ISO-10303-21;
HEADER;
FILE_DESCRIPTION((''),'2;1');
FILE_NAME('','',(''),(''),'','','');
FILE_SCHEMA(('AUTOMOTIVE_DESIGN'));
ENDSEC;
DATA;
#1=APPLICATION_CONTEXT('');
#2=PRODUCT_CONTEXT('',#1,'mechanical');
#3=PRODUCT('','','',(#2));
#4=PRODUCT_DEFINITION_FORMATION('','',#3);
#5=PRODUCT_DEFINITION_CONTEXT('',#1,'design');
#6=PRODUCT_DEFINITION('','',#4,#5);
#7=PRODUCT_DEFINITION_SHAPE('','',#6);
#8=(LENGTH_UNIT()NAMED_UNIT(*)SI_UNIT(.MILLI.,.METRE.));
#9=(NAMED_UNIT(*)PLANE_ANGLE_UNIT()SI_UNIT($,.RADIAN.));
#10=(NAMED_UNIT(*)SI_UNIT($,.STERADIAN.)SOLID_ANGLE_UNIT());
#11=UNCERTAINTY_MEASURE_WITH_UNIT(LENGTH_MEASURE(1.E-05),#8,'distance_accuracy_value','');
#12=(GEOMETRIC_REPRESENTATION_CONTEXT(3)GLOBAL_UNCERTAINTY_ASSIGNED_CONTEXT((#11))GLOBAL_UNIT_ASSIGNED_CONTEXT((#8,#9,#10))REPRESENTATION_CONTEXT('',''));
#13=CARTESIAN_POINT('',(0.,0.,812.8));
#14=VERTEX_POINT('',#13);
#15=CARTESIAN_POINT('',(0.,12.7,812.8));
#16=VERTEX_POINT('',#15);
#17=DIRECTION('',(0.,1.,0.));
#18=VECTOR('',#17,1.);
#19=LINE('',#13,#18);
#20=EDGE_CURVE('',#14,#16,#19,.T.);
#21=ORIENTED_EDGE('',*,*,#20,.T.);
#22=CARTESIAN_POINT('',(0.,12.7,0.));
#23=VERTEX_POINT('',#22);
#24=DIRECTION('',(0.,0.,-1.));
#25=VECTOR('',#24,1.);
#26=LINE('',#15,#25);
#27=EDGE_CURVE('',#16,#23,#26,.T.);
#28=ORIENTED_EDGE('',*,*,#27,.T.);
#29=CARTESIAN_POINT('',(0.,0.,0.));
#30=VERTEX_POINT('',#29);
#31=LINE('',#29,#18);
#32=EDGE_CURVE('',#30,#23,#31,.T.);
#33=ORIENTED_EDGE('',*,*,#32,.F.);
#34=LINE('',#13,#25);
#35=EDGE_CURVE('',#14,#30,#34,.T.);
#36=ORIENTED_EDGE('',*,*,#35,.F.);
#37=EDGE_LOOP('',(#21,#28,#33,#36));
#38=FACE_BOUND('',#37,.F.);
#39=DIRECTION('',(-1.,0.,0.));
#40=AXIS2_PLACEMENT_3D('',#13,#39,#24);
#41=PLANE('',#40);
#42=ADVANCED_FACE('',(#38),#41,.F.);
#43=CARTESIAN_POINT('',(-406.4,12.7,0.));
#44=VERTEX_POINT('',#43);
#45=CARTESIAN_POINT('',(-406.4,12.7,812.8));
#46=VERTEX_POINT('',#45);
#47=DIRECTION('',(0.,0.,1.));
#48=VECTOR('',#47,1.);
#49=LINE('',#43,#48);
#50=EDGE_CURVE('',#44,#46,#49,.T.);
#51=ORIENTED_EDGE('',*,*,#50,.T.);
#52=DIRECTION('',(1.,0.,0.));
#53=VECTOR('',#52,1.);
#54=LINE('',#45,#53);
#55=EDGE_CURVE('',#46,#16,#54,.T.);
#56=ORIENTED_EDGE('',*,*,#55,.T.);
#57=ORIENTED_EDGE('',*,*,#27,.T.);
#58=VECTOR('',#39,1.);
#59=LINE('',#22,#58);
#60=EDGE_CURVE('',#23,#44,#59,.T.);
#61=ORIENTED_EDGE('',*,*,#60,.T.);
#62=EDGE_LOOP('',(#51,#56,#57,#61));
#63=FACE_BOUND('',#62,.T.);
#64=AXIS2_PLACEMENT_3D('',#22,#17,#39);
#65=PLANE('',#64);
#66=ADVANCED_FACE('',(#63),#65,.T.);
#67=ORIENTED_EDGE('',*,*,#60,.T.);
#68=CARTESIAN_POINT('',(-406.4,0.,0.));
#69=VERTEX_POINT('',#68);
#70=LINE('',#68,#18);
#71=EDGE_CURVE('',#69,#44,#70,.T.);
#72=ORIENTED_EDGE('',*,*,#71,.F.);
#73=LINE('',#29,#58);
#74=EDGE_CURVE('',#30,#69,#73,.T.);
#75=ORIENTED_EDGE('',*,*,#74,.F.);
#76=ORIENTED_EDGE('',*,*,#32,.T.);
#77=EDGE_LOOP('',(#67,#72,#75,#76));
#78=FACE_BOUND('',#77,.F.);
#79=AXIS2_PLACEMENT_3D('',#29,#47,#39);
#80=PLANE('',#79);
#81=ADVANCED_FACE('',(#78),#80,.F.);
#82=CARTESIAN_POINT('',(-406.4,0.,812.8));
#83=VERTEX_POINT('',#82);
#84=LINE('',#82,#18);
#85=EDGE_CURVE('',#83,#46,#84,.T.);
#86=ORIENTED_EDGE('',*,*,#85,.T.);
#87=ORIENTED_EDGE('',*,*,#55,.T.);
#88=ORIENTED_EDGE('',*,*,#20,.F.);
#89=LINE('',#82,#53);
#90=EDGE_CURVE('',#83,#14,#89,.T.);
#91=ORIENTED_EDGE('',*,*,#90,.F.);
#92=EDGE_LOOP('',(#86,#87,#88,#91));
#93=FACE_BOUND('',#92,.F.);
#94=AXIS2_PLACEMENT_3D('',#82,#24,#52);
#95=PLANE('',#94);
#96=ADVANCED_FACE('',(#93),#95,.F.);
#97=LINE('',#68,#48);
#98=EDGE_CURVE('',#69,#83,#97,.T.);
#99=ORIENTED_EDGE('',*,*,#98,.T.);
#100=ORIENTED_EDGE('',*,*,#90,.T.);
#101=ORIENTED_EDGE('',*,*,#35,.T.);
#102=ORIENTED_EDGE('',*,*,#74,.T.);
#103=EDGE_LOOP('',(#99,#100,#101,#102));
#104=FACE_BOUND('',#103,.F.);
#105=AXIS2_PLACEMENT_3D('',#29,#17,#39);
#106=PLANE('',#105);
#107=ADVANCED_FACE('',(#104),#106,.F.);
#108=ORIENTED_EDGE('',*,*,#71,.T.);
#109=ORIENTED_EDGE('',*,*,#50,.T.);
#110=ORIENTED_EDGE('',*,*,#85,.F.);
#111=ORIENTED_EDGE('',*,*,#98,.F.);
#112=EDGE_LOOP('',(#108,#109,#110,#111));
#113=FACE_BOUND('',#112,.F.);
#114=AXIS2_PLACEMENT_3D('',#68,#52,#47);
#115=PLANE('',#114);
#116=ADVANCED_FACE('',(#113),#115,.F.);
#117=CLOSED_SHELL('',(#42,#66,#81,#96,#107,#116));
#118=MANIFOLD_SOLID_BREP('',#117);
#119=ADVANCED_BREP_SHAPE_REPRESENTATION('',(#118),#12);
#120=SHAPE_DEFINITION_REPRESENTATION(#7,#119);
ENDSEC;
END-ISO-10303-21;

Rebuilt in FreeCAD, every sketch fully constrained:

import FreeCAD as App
import Part
import Sketcher
Q = App.Units.Quantity

doc = App.newDocument("Part")
body = doc.addObject("PartDesign::Body", "Body")

# Sketch on XZ plane
sketch1 = doc.addObject("Sketcher::SketchObject", "Sketch")
body.addObject(sketch1)
sketch1.AttachmentSupport = (doc.XZ_Plane, [""])
sketch1.MapMode = "FlatFace"
sketch1.addGeometry(Part.LineSegment(App.Vector(0, 812.8, 0), App.Vector(0, 0, 0)), False)
sketch1.addGeometry(Part.LineSegment(App.Vector(0, 0, 0), App.Vector(-406.4, 0, 0)), False)
sketch1.addGeometry(Part.LineSegment(App.Vector(-406.4, 0, 0), App.Vector(-406.4, 812.8, 0)), False)
sketch1.addGeometry(Part.LineSegment(App.Vector(-406.4, 812.8, 0), App.Vector(0, 812.8, 0)), False)
sketch1.addConstraint(Sketcher.Constraint("Coincident", 0, 2, 1, 1))
sketch1.addConstraint(Sketcher.Constraint("Coincident", 1, 2, 2, 1))
sketch1.addConstraint(Sketcher.Constraint("Coincident", 2, 2, 3, 1))
sketch1.addConstraint(Sketcher.Constraint("Coincident", 3, 2, 0, 1))
sketch1.addConstraint(Sketcher.Constraint("Vertical", 0))
sketch1.addConstraint(Sketcher.Constraint("Horizontal", 1))
sketch1.addConstraint(Sketcher.Constraint("Vertical", 2))
sketch1.addConstraint(Sketcher.Constraint("Horizontal", 3))
sketch1.addConstraint(Sketcher.Constraint("Coincident", 0, 2, -1, 1))
sketch1.addConstraint(Sketcher.Constraint("DistanceX", 1, 2, 1, 1, Q("16 in")))
sketch1.addConstraint(Sketcher.Constraint("DistanceY", 0, 2, 0, 1, Q("32 in")))
pad1 = doc.addObject("PartDesign::Pad", "Pad")
body.addObject(pad1)
pad1.Profile = sketch1
pad1.Length = Q("0.5 in")
pad1.Reversed = True

doc.recompute()
